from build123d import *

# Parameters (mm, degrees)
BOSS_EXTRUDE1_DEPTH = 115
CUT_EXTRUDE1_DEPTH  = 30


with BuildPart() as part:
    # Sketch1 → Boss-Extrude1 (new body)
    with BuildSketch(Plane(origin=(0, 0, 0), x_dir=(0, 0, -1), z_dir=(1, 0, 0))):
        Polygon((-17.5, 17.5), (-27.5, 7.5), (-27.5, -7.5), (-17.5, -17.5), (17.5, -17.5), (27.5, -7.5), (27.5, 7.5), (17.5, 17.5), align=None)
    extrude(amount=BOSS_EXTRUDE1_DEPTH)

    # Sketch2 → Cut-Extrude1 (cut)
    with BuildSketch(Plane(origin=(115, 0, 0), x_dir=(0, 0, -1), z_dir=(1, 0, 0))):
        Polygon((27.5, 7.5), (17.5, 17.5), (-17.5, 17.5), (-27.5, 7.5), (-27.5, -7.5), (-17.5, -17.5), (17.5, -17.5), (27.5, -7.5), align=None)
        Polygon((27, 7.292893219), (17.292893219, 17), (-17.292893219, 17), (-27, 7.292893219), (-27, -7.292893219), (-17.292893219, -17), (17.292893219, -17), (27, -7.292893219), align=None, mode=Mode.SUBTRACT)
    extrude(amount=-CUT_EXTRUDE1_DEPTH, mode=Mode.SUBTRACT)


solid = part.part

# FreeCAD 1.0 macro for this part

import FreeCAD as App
import Part
import Sketcher

V = App.Vector
Q = App.Units.Quantity


def add_polygon(sketch, points):
    """Adds a closed chain of lines whose ends are joined by coincident constraints."""
    first, n = sketch.GeometryCount, len(points)
    for a, b in zip(points, points[1:] + points[:1]):
        sketch.addGeometry(Part.LineSegment(App.Vector(*a, 0), App.Vector(*b, 0)), False)
    for i in range(n):
        sketch.addConstraint(Sketcher.Constraint("Coincident", first + i, 2, first + (i + 1) % n, 1))

doc = App.newDocument("Part")
body = doc.addObject("PartDesign::Body", "Body")

sketch1 = doc.addObject("Sketcher::SketchObject", "Sketch")
body.addObject(sketch1)
sketch1.AttachmentSupport = (doc.YZ_Plane, [""])
sketch1.MapMode = "FlatFace"
add_polygon(sketch1, [(18, 18), (8, 28), (-8, 28), (-18, 18), (-18, -18), (-8, -28), (8, -28), (18, -18)])
sketch1.addConstraint([
    Sketcher.Constraint("Horizontal", 1),
    Sketcher.Constraint("Vertical", 3),
    Sketcher.Constraint("Horizontal", 5),
    Sketcher.Constraint("Vertical", 7),
    Sketcher.Constraint("Symmetric", 0, 2, 4, 2, -1, 1),
    Sketcher.Constraint("Symmetric", 2, 2, 6, 2, -1, 1),
    Sketcher.Constraint("Perpendicular", 0, 2),
    Sketcher.Constraint("Perpendicular", 2, 4),
    Sketcher.Constraint("Perpendicular", 4, 6),
    Sketcher.Constraint("Horizontal", 3, 2, 6, 2),
    Sketcher.Constraint("Vertical", 1, 2, 4, 2),
    Sketcher.Constraint("DistanceX", 1, 2, 1, 1, Q("15 mm")),
    Sketcher.Constraint("DistanceY", 3, 2, 3, 1, Q("35 mm")),
    Sketcher.Constraint("DistanceX", 2, 2, 1, 2, Q("10 mm")),
])
pad1 = doc.addObject("PartDesign::Pad", "Pad")
body.addObject(pad1)
pad1.Profile = sketch1
pad1.Length = 115

sketch2 = doc.addObject("Sketcher::SketchObject", "Sketch001")
body.addObject(sketch2)
sketch2.AttachmentSupport = (doc.YZ_Plane, [""])
sketch2.MapMode = "FlatFace"
sketch2.AttachmentOffset = App.Placement(V(0, 0, 115), App.Rotation())
add_polygon(sketch2, [(8, -28), (18, -18), (18, 18), (8, 28), (-8, 28), (-18, 18), (-18, -18), (-8, -28)])
add_polygon(sketch2, [(17, -17), (7, -27), (-7, -27), (-17, -17), (-17, 17), (-7, 27), (7, 27), (17, 17)])
sketch2.addConstraint([
    Sketcher.Constraint("Vertical", 1),
    Sketcher.Constraint("Horizontal", 3),
    Sketcher.Constraint("Vertical", 5),
    Sketcher.Constraint("Horizontal", 7),
    Sketcher.Constraint("Horizontal", 9),
    Sketcher.Constraint("Vertical", 11),
    Sketcher.Constraint("Horizontal", 13),
    Sketcher.Constraint("Vertical", 15),
    Sketcher.Constraint("Symmetric", 0, 2, 4, 2, -1, 1),
    Sketcher.Constraint("Symmetric", 2, 2, 6, 2, -1, 1),
    Sketcher.Constraint("Symmetric", 8, 2, 12, 2, -1, 1),
    Sketcher.Constraint("Symmetric", 10, 2, 14, 2, -1, 1),
    Sketcher.Constraint("Perpendicular", 0, 2),
    Sketcher.Constraint("Perpendicular", 2, 4),
    Sketcher.Constraint("Perpendicular", 4, 6),
    Sketcher.Constraint("Perpendicular", 6, 8),
    Sketcher.Constraint("Perpendicular", 8, 10),
    Sketcher.Constraint("Perpendicular", 10, 12),
    Sketcher.Constraint("Perpendicular", 12, 14),
    Sketcher.Constraint("Horizontal", 1, 2, 4, 2),
    Sketcher.Constraint("Horizontal", 11, 2, 14, 2),
    Sketcher.Constraint("Vertical", 3, 2, 6, 2),
    Sketcher.Constraint("DistanceX", 3, 2, 3, 1, Q("15 mm")),
    Sketcher.Constraint("DistanceY", 1, 1, 1, 2, Q("35 mm")),
    Sketcher.Constraint("DistanceY", 8, 2, -1, 1, Q("27 mm")),
    Sketcher.Constraint("DistanceX", 10, 2, -1, 1, Q("17 mm")),
    Sketcher.Constraint("DistanceX", 2, 2, 1, 2, Q("10 mm")),
    Sketcher.Constraint("DistanceX", 9, 2, 9, 1, Q("14.585786 mm")),
])
pocket1 = doc.addObject("PartDesign::Pocket", "Pocket")
body.addObject(pocket1)
pocket1.Profile = sketch2
pocket1.Length = 30

doc.recompute()
